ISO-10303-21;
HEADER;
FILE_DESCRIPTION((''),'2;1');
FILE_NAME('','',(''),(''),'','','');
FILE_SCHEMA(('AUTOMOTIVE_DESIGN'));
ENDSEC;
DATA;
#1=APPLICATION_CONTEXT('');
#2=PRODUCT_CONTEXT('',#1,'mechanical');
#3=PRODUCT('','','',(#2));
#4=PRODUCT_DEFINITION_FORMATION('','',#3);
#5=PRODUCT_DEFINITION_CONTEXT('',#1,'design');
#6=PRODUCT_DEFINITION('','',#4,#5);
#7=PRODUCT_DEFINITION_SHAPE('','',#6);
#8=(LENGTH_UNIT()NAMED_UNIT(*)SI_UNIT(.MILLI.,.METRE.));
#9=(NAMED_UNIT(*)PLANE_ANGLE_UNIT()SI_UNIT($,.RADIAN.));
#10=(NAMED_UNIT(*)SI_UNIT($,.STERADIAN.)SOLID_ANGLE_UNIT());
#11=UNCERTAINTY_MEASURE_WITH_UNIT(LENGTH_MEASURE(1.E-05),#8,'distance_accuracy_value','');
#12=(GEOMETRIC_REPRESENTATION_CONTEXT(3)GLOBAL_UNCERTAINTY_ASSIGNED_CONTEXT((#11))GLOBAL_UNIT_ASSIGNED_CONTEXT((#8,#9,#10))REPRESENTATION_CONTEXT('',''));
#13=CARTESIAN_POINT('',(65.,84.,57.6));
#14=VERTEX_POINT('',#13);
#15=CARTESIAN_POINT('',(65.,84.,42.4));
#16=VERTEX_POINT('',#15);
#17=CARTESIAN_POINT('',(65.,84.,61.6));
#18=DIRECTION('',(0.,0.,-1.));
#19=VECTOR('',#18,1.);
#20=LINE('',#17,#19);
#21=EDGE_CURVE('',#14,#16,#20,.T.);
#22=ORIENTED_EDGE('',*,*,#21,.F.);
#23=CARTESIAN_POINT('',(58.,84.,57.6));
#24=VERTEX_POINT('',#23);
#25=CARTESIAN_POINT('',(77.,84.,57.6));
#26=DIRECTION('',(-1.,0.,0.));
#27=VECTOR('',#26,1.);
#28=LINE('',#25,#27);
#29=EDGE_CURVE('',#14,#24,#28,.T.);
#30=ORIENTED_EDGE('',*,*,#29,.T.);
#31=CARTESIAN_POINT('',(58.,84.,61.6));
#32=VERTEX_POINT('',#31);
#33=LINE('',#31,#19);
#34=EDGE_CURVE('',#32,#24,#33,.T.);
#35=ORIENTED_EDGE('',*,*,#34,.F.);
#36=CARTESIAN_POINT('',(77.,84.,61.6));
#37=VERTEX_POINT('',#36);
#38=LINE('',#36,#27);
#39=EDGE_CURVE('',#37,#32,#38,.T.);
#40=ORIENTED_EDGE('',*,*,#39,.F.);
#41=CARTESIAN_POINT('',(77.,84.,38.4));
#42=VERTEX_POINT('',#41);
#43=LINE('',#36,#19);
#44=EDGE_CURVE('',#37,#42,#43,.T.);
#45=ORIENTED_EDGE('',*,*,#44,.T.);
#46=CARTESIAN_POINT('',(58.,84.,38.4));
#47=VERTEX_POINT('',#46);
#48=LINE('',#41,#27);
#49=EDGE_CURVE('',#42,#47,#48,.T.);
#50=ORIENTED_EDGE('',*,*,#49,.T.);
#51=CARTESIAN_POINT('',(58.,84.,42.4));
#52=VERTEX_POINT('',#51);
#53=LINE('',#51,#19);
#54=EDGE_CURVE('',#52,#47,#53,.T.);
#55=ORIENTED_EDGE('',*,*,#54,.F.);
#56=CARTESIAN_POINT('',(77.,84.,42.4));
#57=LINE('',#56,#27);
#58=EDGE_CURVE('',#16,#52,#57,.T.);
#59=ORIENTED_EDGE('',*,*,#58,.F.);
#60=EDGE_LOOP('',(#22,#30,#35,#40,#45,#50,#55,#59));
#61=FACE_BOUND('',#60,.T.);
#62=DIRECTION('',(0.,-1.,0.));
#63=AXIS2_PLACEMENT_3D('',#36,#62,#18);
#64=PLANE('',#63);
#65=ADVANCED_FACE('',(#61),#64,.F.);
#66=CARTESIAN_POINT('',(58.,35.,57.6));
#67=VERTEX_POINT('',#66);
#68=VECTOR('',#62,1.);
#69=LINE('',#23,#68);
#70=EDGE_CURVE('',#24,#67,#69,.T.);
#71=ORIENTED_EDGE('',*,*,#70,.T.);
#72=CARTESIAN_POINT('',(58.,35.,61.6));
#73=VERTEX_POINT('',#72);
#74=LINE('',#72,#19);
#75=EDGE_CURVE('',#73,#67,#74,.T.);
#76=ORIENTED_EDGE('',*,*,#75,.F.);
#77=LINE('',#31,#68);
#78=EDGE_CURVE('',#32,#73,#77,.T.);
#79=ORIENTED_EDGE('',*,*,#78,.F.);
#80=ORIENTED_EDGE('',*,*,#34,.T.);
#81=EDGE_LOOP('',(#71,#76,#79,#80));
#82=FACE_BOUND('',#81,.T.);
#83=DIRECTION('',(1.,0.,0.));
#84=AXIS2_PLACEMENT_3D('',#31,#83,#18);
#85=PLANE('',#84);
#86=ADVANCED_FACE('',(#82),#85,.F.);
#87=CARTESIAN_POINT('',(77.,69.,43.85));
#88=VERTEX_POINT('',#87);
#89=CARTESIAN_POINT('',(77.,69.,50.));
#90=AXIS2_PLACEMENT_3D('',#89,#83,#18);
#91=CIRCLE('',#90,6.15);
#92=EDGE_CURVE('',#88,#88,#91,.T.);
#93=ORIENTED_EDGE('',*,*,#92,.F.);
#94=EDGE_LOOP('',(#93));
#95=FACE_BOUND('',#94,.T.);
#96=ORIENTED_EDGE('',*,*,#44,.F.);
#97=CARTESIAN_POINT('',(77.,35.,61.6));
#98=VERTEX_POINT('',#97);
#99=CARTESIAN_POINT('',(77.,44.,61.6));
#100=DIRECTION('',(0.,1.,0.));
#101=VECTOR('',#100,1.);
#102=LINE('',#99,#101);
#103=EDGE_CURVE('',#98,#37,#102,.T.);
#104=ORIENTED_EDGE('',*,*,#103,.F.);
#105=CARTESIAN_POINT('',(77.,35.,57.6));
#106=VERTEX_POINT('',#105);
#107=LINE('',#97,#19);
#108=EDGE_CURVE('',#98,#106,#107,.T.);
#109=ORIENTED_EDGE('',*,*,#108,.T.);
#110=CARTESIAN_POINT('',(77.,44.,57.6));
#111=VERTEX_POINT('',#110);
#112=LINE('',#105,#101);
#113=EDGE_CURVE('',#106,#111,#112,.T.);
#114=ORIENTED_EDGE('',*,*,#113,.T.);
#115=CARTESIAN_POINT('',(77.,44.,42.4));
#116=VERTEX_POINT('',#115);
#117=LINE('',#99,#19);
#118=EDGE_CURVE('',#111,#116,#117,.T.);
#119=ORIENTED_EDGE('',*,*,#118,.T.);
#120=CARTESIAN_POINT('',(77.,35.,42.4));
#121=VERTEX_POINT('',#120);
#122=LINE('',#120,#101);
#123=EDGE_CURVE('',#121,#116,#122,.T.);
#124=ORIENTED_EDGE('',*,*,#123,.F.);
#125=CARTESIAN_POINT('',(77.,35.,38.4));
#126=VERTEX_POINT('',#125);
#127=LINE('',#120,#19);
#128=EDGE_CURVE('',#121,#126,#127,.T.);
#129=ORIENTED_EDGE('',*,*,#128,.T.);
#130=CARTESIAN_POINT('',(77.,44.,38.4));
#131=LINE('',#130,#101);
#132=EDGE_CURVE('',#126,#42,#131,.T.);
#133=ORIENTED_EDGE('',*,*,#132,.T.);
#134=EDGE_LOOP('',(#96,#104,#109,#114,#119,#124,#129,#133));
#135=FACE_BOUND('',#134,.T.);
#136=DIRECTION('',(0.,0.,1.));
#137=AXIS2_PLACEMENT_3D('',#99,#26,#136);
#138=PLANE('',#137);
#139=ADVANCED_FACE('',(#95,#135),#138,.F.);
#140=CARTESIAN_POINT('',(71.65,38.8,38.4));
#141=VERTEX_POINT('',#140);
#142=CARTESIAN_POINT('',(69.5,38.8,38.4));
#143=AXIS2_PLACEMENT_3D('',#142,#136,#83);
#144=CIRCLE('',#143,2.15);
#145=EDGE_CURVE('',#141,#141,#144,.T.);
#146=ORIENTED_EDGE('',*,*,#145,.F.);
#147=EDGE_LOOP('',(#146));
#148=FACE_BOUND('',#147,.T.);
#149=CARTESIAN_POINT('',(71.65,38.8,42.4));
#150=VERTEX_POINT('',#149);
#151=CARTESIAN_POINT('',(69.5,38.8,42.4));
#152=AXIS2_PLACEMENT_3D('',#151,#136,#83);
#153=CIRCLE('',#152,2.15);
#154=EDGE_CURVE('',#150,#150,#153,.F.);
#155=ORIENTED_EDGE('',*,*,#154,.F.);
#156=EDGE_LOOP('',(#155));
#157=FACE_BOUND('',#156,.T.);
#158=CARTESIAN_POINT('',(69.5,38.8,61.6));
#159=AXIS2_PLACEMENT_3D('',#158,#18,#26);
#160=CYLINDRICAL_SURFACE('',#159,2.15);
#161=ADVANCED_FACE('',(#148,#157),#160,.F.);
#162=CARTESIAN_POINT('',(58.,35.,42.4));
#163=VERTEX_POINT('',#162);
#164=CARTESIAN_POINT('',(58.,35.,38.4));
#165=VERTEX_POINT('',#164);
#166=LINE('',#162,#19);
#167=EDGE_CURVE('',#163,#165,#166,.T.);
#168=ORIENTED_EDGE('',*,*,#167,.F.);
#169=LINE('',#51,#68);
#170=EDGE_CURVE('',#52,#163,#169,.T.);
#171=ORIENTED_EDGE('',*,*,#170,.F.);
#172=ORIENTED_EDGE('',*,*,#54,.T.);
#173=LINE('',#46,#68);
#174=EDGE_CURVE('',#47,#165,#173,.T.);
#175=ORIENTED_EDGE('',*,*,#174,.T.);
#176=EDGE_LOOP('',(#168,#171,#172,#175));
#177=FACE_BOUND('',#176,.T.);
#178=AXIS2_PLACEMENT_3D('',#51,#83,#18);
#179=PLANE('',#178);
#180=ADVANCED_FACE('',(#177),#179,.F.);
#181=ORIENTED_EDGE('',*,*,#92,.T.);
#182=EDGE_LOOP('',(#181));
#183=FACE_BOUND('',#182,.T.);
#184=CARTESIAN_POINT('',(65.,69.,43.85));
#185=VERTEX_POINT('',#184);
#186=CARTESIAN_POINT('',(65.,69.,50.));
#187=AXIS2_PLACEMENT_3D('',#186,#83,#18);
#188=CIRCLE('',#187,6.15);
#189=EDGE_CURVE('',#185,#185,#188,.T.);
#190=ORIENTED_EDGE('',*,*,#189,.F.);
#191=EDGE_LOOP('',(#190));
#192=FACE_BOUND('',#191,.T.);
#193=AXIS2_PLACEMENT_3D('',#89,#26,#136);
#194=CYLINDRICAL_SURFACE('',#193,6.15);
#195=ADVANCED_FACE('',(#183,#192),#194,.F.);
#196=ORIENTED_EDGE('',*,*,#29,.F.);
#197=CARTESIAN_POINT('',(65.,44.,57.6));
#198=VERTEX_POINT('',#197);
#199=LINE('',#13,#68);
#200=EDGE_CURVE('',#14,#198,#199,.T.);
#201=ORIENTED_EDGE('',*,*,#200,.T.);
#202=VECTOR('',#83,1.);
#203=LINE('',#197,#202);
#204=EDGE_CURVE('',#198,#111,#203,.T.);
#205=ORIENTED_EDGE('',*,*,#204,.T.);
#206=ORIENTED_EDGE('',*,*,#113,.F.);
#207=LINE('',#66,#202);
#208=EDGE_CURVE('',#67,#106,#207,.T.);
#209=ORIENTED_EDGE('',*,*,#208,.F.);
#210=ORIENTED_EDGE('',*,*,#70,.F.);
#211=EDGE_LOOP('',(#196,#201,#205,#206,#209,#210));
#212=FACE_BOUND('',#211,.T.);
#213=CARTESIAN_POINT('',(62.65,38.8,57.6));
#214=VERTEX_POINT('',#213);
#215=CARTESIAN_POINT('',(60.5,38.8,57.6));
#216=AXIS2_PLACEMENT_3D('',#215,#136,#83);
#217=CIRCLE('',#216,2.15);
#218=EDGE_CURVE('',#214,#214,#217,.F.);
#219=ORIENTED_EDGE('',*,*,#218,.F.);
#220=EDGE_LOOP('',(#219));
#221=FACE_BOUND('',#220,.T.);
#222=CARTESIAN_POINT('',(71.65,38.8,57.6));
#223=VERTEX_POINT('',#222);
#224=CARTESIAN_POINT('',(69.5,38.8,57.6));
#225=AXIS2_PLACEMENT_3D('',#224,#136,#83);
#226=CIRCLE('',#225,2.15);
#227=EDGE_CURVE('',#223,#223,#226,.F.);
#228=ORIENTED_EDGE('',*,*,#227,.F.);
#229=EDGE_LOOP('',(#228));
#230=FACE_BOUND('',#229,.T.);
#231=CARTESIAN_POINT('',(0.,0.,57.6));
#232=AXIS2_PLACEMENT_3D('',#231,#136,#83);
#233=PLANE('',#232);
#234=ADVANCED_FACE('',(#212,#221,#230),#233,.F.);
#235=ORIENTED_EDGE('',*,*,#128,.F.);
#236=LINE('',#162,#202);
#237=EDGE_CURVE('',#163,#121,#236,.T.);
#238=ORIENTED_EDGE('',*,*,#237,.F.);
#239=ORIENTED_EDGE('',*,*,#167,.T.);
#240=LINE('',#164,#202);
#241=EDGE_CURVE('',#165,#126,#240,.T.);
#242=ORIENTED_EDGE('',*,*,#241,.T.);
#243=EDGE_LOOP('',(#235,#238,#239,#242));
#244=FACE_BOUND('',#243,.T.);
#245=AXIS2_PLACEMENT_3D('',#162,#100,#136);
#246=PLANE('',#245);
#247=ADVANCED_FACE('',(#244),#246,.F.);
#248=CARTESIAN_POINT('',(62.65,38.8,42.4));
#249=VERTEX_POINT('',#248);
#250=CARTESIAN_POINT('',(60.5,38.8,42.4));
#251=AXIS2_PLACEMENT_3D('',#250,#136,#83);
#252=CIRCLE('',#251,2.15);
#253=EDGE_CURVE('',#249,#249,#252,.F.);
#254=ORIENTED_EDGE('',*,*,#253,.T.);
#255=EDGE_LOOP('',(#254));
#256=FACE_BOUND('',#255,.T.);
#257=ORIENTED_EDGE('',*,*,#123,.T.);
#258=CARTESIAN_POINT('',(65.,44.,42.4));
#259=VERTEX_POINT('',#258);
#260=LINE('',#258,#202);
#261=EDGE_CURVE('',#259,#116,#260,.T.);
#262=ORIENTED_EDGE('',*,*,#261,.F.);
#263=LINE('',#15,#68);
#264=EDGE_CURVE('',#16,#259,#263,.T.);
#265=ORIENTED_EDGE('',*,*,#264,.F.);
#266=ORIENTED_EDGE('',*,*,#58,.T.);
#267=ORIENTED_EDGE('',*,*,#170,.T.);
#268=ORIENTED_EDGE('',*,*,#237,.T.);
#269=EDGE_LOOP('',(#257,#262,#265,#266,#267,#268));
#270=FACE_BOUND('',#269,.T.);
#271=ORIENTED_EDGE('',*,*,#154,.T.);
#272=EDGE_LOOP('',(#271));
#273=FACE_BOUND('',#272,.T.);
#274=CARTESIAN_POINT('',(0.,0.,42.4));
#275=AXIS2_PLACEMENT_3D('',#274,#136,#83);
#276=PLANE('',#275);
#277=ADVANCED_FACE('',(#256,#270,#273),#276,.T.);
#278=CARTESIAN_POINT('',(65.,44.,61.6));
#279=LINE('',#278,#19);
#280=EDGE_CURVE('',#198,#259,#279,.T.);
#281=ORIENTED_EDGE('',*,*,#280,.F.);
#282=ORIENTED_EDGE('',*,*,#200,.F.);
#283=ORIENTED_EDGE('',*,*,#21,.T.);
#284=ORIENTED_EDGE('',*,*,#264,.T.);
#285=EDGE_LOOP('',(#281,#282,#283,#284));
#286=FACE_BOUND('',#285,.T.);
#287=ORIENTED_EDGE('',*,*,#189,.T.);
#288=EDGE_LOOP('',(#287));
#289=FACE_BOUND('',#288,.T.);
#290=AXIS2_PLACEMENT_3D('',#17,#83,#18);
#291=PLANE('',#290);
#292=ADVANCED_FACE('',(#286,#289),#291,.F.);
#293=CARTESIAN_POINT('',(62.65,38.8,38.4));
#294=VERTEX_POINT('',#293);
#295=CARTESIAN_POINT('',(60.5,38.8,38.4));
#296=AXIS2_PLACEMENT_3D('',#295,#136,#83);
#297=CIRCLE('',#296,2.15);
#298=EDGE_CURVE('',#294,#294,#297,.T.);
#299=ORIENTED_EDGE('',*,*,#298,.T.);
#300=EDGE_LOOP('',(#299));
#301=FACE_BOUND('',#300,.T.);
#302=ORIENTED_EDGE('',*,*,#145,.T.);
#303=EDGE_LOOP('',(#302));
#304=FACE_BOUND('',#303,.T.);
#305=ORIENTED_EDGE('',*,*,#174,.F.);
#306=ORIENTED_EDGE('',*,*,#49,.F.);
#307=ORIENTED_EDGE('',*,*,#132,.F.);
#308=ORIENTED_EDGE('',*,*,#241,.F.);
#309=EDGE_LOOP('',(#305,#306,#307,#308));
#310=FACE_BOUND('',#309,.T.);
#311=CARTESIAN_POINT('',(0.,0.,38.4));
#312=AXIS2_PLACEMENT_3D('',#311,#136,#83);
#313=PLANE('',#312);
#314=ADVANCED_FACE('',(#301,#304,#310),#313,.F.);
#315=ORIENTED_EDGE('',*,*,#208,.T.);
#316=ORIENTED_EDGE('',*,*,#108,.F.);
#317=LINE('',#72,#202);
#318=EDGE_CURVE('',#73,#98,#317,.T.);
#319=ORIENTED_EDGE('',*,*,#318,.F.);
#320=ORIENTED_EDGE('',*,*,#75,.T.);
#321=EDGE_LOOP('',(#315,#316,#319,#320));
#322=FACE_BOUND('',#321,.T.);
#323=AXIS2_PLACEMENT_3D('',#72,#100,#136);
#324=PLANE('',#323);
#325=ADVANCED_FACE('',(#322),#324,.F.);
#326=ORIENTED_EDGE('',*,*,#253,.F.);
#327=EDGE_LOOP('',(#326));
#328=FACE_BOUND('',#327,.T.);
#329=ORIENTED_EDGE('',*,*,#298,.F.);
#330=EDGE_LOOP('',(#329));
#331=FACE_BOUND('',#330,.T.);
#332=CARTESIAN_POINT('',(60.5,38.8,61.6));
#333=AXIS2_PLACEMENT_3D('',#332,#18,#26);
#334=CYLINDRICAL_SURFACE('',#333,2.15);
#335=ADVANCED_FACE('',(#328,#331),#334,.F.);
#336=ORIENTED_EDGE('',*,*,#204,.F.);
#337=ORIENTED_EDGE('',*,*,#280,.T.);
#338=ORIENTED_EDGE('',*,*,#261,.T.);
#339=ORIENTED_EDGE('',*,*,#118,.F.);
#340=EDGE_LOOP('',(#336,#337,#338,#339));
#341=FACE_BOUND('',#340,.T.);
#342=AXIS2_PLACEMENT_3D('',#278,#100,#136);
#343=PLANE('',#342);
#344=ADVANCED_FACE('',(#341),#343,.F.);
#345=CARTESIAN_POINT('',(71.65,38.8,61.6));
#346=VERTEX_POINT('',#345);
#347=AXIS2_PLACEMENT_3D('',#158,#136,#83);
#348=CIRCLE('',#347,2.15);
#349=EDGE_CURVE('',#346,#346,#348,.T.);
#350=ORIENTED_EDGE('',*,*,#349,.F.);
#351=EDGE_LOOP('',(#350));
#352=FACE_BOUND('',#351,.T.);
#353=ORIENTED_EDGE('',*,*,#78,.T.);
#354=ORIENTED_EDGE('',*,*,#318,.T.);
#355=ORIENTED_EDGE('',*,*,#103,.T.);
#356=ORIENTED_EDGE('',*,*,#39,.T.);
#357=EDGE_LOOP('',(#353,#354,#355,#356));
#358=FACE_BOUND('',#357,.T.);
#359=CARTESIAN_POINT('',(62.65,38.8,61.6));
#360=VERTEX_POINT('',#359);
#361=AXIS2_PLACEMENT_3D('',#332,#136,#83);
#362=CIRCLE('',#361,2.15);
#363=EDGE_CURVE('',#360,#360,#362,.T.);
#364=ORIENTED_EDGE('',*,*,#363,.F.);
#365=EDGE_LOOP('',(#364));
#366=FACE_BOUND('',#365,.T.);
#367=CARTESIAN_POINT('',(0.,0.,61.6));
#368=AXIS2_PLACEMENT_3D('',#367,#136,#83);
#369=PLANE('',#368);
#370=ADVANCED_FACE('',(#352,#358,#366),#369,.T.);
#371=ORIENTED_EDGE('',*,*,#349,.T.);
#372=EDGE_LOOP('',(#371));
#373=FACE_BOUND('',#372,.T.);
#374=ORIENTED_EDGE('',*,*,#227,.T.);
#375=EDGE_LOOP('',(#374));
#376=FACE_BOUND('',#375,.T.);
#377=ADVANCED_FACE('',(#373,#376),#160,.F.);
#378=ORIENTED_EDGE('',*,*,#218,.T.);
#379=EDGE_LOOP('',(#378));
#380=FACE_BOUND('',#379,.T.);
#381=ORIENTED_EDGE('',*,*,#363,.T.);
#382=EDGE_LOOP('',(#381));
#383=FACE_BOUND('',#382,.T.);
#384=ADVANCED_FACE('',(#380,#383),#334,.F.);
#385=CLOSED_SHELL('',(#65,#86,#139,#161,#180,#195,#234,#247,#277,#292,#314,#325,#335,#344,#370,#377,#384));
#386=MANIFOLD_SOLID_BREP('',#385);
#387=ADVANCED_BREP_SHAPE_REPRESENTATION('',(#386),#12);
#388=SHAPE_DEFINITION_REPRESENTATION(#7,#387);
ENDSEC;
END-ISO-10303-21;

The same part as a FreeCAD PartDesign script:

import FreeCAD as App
import Part
import Sketcher

V = App.Vector


def add_polygon(sketch, points):
    """Adds a closed chain of lines whose ends are joined by coincident constraints."""
    first, n = sketch.GeometryCount, len(points)
    for a, b in zip(points, points[1:] + points[:1]):
        sketch.addGeometry(Part.LineSegment(App.Vector(*a, 0), App.Vector(*b, 0)), False)
    for i in range(n):
        sketch.addConstraint(Sketcher.Constraint("Coincident", first + i, 2, first + (i + 1) % n, 1))

doc = App.newDocument("Part")
body = doc.addObject("PartDesign::Body", "Body")

# Sketch on XY plane
sketch1 = body.newObject("Sketcher::SketchObject", "Sketch")
sketch1.AttachmentSupport = (doc.getObject("XY_Plane"), [""])
sketch1.MapMode = "FlatFace"
sketch1.AttachmentOffset = App.Placement(V(0, 0, 38.4), App.Rotation())
add_polygon(sketch1, [(65, 84), (65, 44), (77, 44), (77, 84)])  # lines 0-3
sketch1.addConstraint(Sketcher.Constraint("Vertical", 0))
sketch1.addConstraint(Sketcher.Constraint("Horizontal", 1))
sketch1.addConstraint(Sketcher.Constraint("Vertical", 2))
sketch1.addConstraint(Sketcher.Constraint("Horizontal", 3))
sketch1.addConstraint(Sketcher.Constraint("DistanceX", 1, 1, 1, 2, 12.0))
sketch1.addConstraint(Sketcher.Constraint("DistanceY", 0, 2, 0, 1, 40.0))
sketch1.addConstraint(Sketcher.Constraint("DistanceX", -1, 1, 0, 2, 65.0))
sketch1.addConstraint(Sketcher.Constraint("DistanceY", -1, 1, 0, 2, 44.0))
pad1 = body.newObject("PartDesign::Pad", "Pad")
pad1.Profile = sketch1
pad1.Length = 23.2

# Sketch on XY plane
sketch2 = body.newObject("Sketcher::SketchObject", "Sketch001")
sketch2.AttachmentSupport = (doc.getObject("XY_Plane"), [""])
sketch2.MapMode = "FlatFace"
sketch2.AttachmentOffset = App.Placement(V(0, 0, 38.4), App.Rotation())
add_polygon(sketch2, [(58, 84), (58, 35), (77, 35), (77, 84)])  # lines 0-3
sketch2.addConstraint(Sketcher.Constraint("Vertical", 0))
sketch2.addConstraint(Sketcher.Constraint("Horizontal", 1))
sketch2.addConstraint(Sketcher.Constraint("Vertical", 2))
sketch2.addConstraint(Sketcher.Constraint("Horizontal", 3))
sketch2.addConstraint(Sketcher.Constraint("DistanceX", 1, 1, 1, 2, 19.0))
sketch2.addConstraint(Sketcher.Constraint("DistanceY", 0, 2, 0, 1, 49.0))
sketch2.addConstraint(Sketcher.Constraint("DistanceX", -1, 1, 0, 2, 58.0))
sketch2.addConstraint(Sketcher.Constraint("DistanceY", -1, 1, 0, 2, 35.0))
pad2 = body.newObject("PartDesign::Pad", "Pad001")
pad2.Profile = sketch2
pad2.Length = 4

# Sketch on XY plane
sketch3 = body.newObject("Sketcher::SketchObject", "Sketch002")
sketch3.AttachmentSupport = (doc.getObject("XY_Plane"), [""])
sketch3.MapMode = "FlatFace"
sketch3.AttachmentOffset = App.Placement(V(0, 0, 57.6), App.Rotation())
add_polygon(sketch3, [(58, 84), (58, 35), (77, 35), (77, 84)])  # lines 0-3
sketch3.addConstraint(Sketcher.Constraint("Vertical", 0))
sketch3.addConstraint(Sketcher.Constraint("Horizontal", 1))
sketch3.addConstraint(Sketcher.Constraint("Vertical", 2))
sketch3.addConstraint(Sketcher.Constraint("Horizontal", 3))
sketch3.addConstraint(Sketcher.Constraint("DistanceX", 1, 1, 1, 2, 19.0))
sketch3.addConstraint(Sketcher.Constraint("DistanceY", 0, 2, 0, 1, 49.0))
sketch3.addConstraint(Sketcher.Constraint("DistanceX", -1, 1, 0, 2, 58.0))
sketch3.addConstraint(Sketcher.Constraint("DistanceY", -1, 1, 0, 2, 35.0))
pad3 = body.newObject("PartDesign::Pad", "Pad002")
pad3.Profile = sketch3
pad3.Length = 4

# Sketch on XY plane
sketch4 = body.newObject("Sketcher::SketchObject", "Sketch003")
sketch4.AttachmentSupport = (doc.getObject("XY_Plane"), [""])
sketch4.MapMode = "FlatFace"
sketch4.AttachmentOffset = App.Placement(V(0, 0, 38.4), App.Rotation())
sketch4.addGeometry(Part.Circle(V(60.5, 38.8, 0), V(0, 0, 1), 2.1), False)
sketch4.addGeometry(Part.Circle(V(69.5, 38.8, 0), V(0, 0, 1), 2.1), False)
sketch4.addConstraint(Sketcher.Constraint("Equal", 0, 1))
sketch4.addConstraint(Sketcher.Constraint("Horizontal", 0, 3, 1, 3))
sketch4.addConstraint(Sketcher.Constraint("Diameter", 0, 4.3))
sketch4.addConstraint(Sketcher.Constraint("DistanceX", 0, 3, 1, 3, 9.0))
sketch4.addConstraint(Sketcher.Constraint("DistanceX", -1, 1, 0, 3, 60.5))
sketch4.addConstraint(Sketcher.Constraint("DistanceY", -1, 1, 0, 3, 38.8))
pocket1 = body.newObject("PartDesign::Pocket", "Pocket")
pocket1.Profile = sketch4
pocket1.Length = 23.2
pocket1.Reversed = True

# Sketch on YZ plane
sketch5 = body.newObject("Sketcher::SketchObject", "Sketch004")
sketch5.AttachmentSupport = (doc.getObject("YZ_Plane"), [""])
sketch5.MapMode = "FlatFace"
sketch5.AttachmentOffset = App.Placement(V(0, 0, 65), App.Rotation())
sketch5.addGeometry(Part.Circle(V(69, 50, 0), V(0, 0, 1), 6), False)
sketch5.addConstraint(Sketcher.Constraint("Diameter", 0, 12.3))
sketch5.addConstraint(Sketcher.Constraint("DistanceX", -1, 1, 0, 3, 69.0))
sketch5.addConstraint(Sketcher.Constraint("DistanceY", -1, 1, 0, 3, 50.0))
pocket2 = body.newObject("PartDesign::Pocket", "Pocket001")
pocket2.Profile = sketch5
pocket2.Length = 12
pocket2.Reversed = True

doc.recompute()
